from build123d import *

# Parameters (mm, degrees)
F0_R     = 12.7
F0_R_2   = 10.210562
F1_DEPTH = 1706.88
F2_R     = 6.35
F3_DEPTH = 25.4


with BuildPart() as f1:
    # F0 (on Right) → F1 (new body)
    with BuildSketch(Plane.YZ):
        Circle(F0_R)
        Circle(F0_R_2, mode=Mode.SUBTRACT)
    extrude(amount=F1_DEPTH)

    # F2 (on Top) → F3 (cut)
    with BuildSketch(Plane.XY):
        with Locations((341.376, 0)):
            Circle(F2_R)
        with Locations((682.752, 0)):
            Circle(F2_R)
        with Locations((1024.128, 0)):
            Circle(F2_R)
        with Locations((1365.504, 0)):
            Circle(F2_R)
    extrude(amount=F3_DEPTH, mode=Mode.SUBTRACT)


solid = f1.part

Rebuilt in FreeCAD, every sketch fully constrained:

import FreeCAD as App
import Part
import Sketcher
from FreeCAD import Vector
Q = App.Units.Quantity

doc = App.newDocument("Part")
params = doc.addObject("Spreadsheet::Sheet", "Params")
for row, (alias, value) in enumerate([
    ("sketch1_diameter", "1 in"),
    ("pad1_length", "67.2 in"),
    ("sketch2_diameter", "0.5 in"),
    ("pocket1_length", "1 in"),
], start=1):
    params.set(f"A{row}", alias)
    params.set(f"B{row}", "=" + value)
    params.setAlias(f"B{row}", alias)

body = doc.addObject("PartDesign::Body", "Body")

# Sketch on YZ plane
sketch1 = body.newObject("Sketcher::SketchObject", "Sketch")
sketch1.AttachmentSupport = (doc.getObject("YZ_Plane"), [""])
sketch1.MapMode = "FlatFace"
sketch1.addGeometry([
    Part.Circle(Vector(0, 0, 0), Vector(0, 0, 1), 13),
    Part.Circle(Vector(0, 0, 0), Vector(0, 0, 1), 10),
], False)
sketch1.addConstraint([
    Sketcher.Constraint("Coincident", 0, 3, -1, 1),
    Sketcher.Constraint("Coincident", 1, 3, -1, 1),
    Sketcher.Constraint("Diameter", 0, Q("1 in")),
    Sketcher.Constraint("Diameter", 1, Q("20.421124 mm")),
])
sketch1.setExpression("Constraints[2]", "Params.sketch1_diameter")
pad1 = body.newObject("PartDesign::Pad", "Pad")
pad1.Profile = sketch1
pad1.setExpression("Length", "Params.pad1_length")

# Sketch on XY plane
sketch2 = body.newObject("Sketcher::SketchObject", "Sketch001")
sketch2.AttachmentSupport = (doc.getObject("XY_Plane"), [""])
sketch2.MapMode = "FlatFace"
sketch2.addGeometry([
    Part.Circle(Vector(341, 0, 0), Vector(0, 0, 1), 6),
    Part.Circle(Vector(683, 0, 0), Vector(0, 0, 1), 6),
    Part.Circle(Vector(1024, 0, 0), Vector(0, 0, 1), 6),
    Part.Circle(Vector(1366, 0, 0), Vector(0, 0, 1), 6),
], False)
sketch2.addConstraint([
    Sketcher.Constraint("Equal", 0, 1),
    Sketcher.Constraint("Equal", 1, 2),
    Sketcher.Constraint("Equal", 2, 3),
    Sketcher.Constraint("PointOnObject", 0, 3, -1),
    Sketcher.Constraint("PointOnObject", 1, 3, -1),
    Sketcher.Constraint("PointOnObject", 2, 3, -1),
    Sketcher.Constraint("PointOnObject", 3, 3, -1),
    Sketcher.Constraint("Diameter", 0, Q("0.5 in")),
    Sketcher.Constraint("DistanceX", -1, 1, 0, 3, Q("13.44 in")),
    Sketcher.Constraint("DistanceX", -1, 1, 1, 3, Q("26.88 in")),
    Sketcher.Constraint("DistanceX", -1, 1, 2, 3, Q("40.32 in")),
    Sketcher.Constraint("DistanceX", -1, 1, 3, 3, Q("53.76 in")),
])
sketch2.setExpression("Constraints[7]", "Params.sketch2_diameter")
pocket1 = body.newObject("PartDesign::Pocket", "Pocket")
pocket1.Profile = sketch2
pocket1.setExpression("Length", "Params.pocket1_length")
pocket1.Reversed = True

doc.recompute()
